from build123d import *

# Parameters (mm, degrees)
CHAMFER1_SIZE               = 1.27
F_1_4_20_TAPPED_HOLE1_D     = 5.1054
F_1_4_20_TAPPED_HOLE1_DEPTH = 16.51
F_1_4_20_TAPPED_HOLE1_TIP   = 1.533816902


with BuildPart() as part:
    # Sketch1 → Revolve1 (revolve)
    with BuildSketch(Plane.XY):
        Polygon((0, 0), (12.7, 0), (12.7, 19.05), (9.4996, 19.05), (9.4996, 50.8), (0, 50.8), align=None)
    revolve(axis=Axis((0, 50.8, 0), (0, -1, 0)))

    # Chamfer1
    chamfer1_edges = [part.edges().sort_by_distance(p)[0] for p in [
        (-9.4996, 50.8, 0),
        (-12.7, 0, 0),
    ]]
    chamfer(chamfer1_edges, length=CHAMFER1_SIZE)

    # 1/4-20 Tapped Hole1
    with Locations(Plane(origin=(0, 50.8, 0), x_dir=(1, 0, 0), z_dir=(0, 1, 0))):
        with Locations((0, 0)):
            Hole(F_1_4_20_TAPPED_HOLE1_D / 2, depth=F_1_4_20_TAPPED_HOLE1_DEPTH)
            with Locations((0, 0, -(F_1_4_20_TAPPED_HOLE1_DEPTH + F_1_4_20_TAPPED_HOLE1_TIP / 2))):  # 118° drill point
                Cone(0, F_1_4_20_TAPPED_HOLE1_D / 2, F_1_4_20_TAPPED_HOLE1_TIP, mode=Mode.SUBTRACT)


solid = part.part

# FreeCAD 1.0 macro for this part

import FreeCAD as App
import Part
import Sketcher

V = App.Vector
Q = App.Units.Quantity


def edges_at(feature, points):
    """Names of the edges that pass closest to the given points."""
    edges = feature.Shape.Edges
    near = lambda p: min(range(len(edges)), key=lambda i: edges[i].distToShape(Part.Vertex(*p))[0])
    return sorted({f"Edge{near(p) + 1}" for p in points})

doc = App.newDocument("Part")
params = doc.addObject("Spreadsheet::Sheet", "Params")
for row, (alias, value) in enumerate([
    ("sketch1_height", "2 in"),
    ("sketch1_width", "0.5 in"),
    ("sketch1_height2", "0.75 in"),
    ("sketch1_width2", "0.126 in"),
    ("revolution_angle", "360 deg"),
    ("chamfer_size", "0.05 in"),
    ("sketch2_diameter", "0.201 in"),
    ("hole_diameter", "0.201 in"),
    ("hole_depth", "0.65 in"),
], start=1):
    params.set(f"A{row}", alias)
    params.set(f"B{row}", "=" + value)
    params.setAlias(f"B{row}", alias)

body = doc.addObject("PartDesign::Body", "Body")

# Sketch on XY plane
sketch1 = body.newObject("Sketcher::SketchObject", "Sketch")
sketch1.AttachmentSupport = (doc.getObject("XY_Plane"), [""])
sketch1.MapMode = "FlatFace"
sketch1.addGeometry([
    Part.LineSegment(V(0, 0, 0), V(12.7, 0, 0)),  # 0
    Part.LineSegment(V(12.7, 0, 0), V(12.7, 19.05, 0)),  # 1
    Part.LineSegment(V(12.7, 19.05, 0), V(9.4996, 19.05, 0)),  # 2
    Part.LineSegment(V(9.4996, 19.05, 0), V(9.4996, 50.8, 0)),  # 3
    Part.LineSegment(V(9.4996, 50.8, 0), V(0, 50.8, 0)),  # 4
    Part.LineSegment(V(0, 50.8, 0), V(0, 0, 0)),  # 5
], False)
sketch1.addConstraint([
    Sketcher.Constraint("Coincident", 0, 2, 1, 1),
    Sketcher.Constraint("Coincident", 1, 2, 2, 1),
    Sketcher.Constraint("Coincident", 2, 2, 3, 1),
    Sketcher.Constraint("Coincident", 3, 2, 4, 1),
    Sketcher.Constraint("Coincident", 4, 2, 5, 1),
    Sketcher.Constraint("Coincident", 5, 2, 0, 1),
    Sketcher.Constraint("Horizontal", 0),
    Sketcher.Constraint("Vertical", 1),
    Sketcher.Constraint("Horizontal", 2),
    Sketcher.Constraint("Vertical", 3),
    Sketcher.Constraint("Horizontal", 4),
    Sketcher.Constraint("Vertical", 5),
    Sketcher.Constraint("Coincident", 5, 2, -1, 1),
    Sketcher.Constraint("DistanceY", 5, 2, 5, 1, Q("2 in")),
    Sketcher.Constraint("DistanceX", 0, 1, 0, 2, Q("0.5 in")),
    Sketcher.Constraint("DistanceY", 1, 1, 1, 2, Q("0.75 in")),
    Sketcher.Constraint("DistanceX", 2, 2, 2, 1, Q("0.126 in")),
])
sketch1.setExpression("Constraints[13]", "Params.sketch1_height")
sketch1.setExpression("Constraints[14]", "Params.sketch1_width")
sketch1.setExpression("Constraints[15]", "Params.sketch1_height2")
sketch1.setExpression("Constraints[16]", "Params.sketch1_width2")
revolution = body.newObject("PartDesign::Revolution", "Revolution")
revolution.Profile = sketch1
revolution.ReferenceAxis = (sketch1, ["V_Axis"])
revolution.setExpression("Angle", "Params.revolution_angle")
doc.recompute()

chamfer = body.newObject("PartDesign::Chamfer", "Chamfer")
chamfer.Base = (revolution, edges_at(revolution, [(-9.5, 50.8, 0), (-12.7, 0, 0)]))
chamfer.setExpression("Size", "Params.chamfer_size")

# Sketch on XZ plane
sketch2 = body.newObject("Sketcher::SketchObject", "Sketch001")
sketch2.AttachmentSupport = (doc.getObject("XZ_Plane"), [""])
sketch2.MapMode = "FlatFace"
sketch2.AttachmentOffset = App.Placement(V(0, 0, -2 * 25.4), App.Rotation())
sketch2.addGeometry(Part.Circle(V(0, 0, 0), V(0, 0, 1), 2.5527), False)
sketch2.addConstraint([
    Sketcher.Constraint("Coincident", 0, 3, -1, 1),
    Sketcher.Constraint("Diameter", 0, Q("0.201 in")),
])
sketch2.setExpression("Constraints[1]", "Params.sketch2_diameter")
doc.recompute()
hole = body.newObject("PartDesign::Hole", "Hole")
hole.Profile = sketch2
hole.ThreadType = "None"
hole.setExpression("Diameter", "Params.hole_diameter")
hole.DepthType = "Dimension"
hole.setExpression("Depth", "Params.hole_depth")
hole.DrillPoint = "Angled"
hole.DrillPointAngle = 118
hole.Reversed = True

doc.recompute()
